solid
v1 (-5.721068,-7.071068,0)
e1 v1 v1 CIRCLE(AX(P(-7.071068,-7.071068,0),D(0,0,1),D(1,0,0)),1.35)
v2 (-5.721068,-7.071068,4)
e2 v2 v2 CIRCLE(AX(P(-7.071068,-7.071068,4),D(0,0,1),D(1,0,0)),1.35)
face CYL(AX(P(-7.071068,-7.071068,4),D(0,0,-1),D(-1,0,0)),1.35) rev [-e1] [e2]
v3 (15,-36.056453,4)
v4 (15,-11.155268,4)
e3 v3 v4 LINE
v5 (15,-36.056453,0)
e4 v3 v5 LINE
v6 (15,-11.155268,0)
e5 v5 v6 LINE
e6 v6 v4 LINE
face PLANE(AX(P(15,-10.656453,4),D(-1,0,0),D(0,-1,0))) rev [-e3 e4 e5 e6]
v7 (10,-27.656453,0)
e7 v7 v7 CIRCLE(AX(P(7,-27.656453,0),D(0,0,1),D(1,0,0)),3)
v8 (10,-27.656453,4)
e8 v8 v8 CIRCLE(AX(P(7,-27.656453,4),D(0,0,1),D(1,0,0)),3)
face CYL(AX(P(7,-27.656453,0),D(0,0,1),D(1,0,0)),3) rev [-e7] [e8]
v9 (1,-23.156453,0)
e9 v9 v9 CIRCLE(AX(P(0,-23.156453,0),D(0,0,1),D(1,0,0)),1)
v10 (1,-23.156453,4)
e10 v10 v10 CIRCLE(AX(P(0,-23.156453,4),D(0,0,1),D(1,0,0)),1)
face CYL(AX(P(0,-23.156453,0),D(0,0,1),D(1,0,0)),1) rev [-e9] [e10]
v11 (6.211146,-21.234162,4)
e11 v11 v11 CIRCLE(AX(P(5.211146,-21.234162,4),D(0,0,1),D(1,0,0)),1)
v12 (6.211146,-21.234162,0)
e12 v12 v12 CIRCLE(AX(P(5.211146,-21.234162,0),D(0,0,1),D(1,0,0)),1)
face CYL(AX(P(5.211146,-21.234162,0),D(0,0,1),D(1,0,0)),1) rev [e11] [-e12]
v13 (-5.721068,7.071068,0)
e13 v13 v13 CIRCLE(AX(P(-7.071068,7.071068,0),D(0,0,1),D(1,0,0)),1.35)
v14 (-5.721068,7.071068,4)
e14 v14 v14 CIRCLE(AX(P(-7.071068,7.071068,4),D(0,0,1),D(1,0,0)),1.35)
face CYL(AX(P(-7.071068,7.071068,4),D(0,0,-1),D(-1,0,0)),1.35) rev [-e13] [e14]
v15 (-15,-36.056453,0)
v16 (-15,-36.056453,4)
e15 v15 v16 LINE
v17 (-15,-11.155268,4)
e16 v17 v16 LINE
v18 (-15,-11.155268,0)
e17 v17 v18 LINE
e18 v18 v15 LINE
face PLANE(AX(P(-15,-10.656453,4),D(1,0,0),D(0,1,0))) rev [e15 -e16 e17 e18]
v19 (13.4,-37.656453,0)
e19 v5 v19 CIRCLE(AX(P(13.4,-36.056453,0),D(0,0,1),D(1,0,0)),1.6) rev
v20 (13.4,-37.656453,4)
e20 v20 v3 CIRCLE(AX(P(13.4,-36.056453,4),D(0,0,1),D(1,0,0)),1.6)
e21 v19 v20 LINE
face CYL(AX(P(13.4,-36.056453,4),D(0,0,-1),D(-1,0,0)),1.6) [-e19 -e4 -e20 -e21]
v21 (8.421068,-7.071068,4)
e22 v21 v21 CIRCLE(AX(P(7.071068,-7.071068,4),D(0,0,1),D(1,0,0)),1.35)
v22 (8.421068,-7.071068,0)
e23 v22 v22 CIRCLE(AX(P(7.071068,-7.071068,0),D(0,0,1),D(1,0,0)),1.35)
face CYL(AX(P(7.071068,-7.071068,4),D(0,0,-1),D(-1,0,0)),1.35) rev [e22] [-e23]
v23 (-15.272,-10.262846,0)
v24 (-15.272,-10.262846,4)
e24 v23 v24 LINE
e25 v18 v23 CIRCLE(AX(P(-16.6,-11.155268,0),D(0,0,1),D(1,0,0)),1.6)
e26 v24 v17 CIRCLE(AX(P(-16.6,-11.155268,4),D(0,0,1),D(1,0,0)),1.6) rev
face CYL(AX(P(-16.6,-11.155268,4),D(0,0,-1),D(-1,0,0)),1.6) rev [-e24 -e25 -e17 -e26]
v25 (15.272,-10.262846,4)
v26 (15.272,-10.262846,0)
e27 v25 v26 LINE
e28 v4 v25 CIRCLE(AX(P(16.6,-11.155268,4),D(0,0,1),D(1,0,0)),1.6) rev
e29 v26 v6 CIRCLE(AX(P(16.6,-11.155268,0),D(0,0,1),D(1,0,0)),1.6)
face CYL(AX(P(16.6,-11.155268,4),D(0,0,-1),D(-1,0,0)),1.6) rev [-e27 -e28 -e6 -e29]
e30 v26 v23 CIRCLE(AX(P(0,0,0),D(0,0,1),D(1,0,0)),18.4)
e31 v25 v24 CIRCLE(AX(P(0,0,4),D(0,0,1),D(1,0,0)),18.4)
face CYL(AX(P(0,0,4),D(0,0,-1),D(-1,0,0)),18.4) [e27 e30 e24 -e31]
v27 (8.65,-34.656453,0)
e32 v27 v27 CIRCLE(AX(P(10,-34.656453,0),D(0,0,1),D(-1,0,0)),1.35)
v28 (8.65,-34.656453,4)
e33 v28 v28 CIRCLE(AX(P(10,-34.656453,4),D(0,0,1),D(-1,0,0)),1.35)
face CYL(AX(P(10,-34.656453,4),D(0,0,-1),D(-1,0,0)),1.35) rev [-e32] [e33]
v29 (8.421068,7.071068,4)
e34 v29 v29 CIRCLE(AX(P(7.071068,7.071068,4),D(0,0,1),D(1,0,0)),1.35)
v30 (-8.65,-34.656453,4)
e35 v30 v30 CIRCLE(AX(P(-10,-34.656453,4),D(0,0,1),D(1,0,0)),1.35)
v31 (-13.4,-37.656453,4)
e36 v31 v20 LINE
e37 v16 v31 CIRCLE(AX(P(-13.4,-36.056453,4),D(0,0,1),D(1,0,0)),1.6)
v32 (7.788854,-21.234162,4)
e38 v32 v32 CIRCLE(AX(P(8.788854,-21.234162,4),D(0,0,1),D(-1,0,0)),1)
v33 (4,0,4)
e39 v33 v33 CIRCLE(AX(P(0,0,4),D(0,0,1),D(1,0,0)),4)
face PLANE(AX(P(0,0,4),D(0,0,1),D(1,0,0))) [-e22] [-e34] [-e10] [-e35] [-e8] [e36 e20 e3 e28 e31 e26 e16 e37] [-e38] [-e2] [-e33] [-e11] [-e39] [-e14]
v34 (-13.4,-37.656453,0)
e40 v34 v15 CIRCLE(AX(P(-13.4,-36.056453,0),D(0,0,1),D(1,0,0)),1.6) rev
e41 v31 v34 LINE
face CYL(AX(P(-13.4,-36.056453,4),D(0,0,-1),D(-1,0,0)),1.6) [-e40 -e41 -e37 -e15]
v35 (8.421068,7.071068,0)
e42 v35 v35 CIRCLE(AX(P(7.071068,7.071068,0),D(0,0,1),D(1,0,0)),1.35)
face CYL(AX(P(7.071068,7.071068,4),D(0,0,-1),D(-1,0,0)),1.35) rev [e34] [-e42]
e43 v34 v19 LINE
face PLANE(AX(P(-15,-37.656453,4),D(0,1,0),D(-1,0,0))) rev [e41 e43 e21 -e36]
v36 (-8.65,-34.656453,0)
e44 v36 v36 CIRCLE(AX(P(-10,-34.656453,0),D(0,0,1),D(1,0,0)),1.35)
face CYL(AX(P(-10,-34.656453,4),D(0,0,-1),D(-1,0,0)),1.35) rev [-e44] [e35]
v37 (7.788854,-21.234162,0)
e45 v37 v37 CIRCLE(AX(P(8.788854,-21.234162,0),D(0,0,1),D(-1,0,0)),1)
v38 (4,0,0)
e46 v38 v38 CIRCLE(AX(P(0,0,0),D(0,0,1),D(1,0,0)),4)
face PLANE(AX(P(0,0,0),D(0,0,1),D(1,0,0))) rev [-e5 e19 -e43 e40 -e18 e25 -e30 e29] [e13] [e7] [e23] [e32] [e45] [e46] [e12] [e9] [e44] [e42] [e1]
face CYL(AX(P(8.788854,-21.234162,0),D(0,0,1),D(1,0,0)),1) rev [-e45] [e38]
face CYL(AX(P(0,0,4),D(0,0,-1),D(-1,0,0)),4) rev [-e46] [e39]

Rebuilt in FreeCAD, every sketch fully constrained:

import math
import FreeCAD as App
import Part
import Sketcher


def edges_at(feature, points):
    """Names of the edges that pass closest to the given points."""
    edges = feature.Shape.Edges
    near = lambda p: min(range(len(edges)), key=lambda i: edges[i].distToShape(Part.Vertex(*p))[0])
    return sorted({f"Edge{near(p) + 1}" for p in points})

doc = App.newDocument("Part")
body = doc.addObject("PartDesign::Body", "Body")

# Sketch on XY plane
sketch1 = body.newObject("Sketcher::SketchObject", "Sketch")
sketch1.AttachmentSupport = (doc.getObject("XY_Plane"), [""])
sketch1.MapMode = "FlatFace"
sketch1.addGeometry([
    Part.LineSegment(App.Vector(-15, -10.7, 0), App.Vector(-15, -37.7, 0)),  # 0
    Part.LineSegment(App.Vector(-15, -37.7, 0), App.Vector(15, -37.7, 0)),  # 1
    Part.LineSegment(App.Vector(15, -37.7, 0), App.Vector(15, -10.7, 0)),  # 2
    Part.ArcOfCircle(Part.Circle(App.Vector(0, 0, 0), App.Vector(0, 0, 1), 18.4), math.radians(-35), math.radians(215)),  # 3
    Part.Circle(App.Vector(-10, -34.7, 0), App.Vector(0, 0, 1), 1.4),  # 4
    Part.Circle(App.Vector(10, -34.7, 0), App.Vector(0, 0, 1), 1.4),  # 5
    Part.Circle(App.Vector(-7.1, -7.1, 0), App.Vector(0, 0, 1), 1.4),  # 6
    Part.Circle(App.Vector(-7.1, 7.1, 0), App.Vector(0, 0, 1), 1.4),  # 7
    Part.Circle(App.Vector(7.1, -7.1, 0), App.Vector(0, 0, 1), 1.4),  # 8
    Part.Circle(App.Vector(0, 0, 0), App.Vector(0, 0, 1), 4),  # 9
    Part.Circle(App.Vector(7.1, 7.1, 0), App.Vector(0, 0, 1), 1.4),  # 10
], False)
sketch1.addConstraint([
    Sketcher.Constraint("Coincident", 0, 2, 1, 1),
    Sketcher.Constraint("Coincident", 1, 2, 2, 1),
    Sketcher.Constraint("Coincident", 2, 2, 3, 1),
    Sketcher.Constraint("Coincident", 3, 2, 0, 1),
    Sketcher.Constraint("Vertical", 0),
    Sketcher.Constraint("Horizontal", 1),
    Sketcher.Constraint("Vertical", 2),
    Sketcher.Constraint("Coincident", 3, 3, -1, 1),
    Sketcher.Constraint("Coincident", 9, 3, -1, 1),
    Sketcher.Constraint("Equal", 4, 5),
    Sketcher.Constraint("Equal", 5, 6),
    Sketcher.Constraint("Equal", 6, 7),
    Sketcher.Constraint("Equal", 7, 8),
    Sketcher.Constraint("Equal", 8, 10),
    Sketcher.Constraint("Symmetric", 7, 3, 8, 3, -1, 1),
    Sketcher.Constraint("Symmetric", 6, 3, 10, 3, -1, 1),
    Sketcher.Constraint("Symmetric", 4, 3, 5, 3, -2),
    Sketcher.Constraint("Symmetric", 6, 3, 8, 3, -2),
    Sketcher.Constraint("Horizontal", 2, 2, 3, 2),
    Sketcher.Constraint("Diameter", 9, 8.0),
    Sketcher.Constraint("Diameter", 4, 2.7),
    Sketcher.Constraint("Radius", 3, 18.4),
    Sketcher.Constraint("DistanceX", 1, 1, 1, 2, 30.0),
    Sketcher.Constraint("DistanceY", 0, 2, 0, 1, 27.0),
    Sketcher.Constraint("DistanceX", 4, 3, -1, 1, 10.0),
    Sketcher.Constraint("DistanceY", 0, 2, 4, 3, 3.0),
    Sketcher.Constraint("DistanceY", 4, 3, 7, 3, 41.727521),
    Sketcher.Constraint("DistanceX", 6, 3, -1, 1, 7.071068),
])
pad1 = body.newObject("PartDesign::Pad", "Pad")
pad1.Profile = sketch1
pad1.Length = 4

# Sketch on XY plane
sketch2 = body.newObject("Sketcher::SketchObject", "Sketch001")
sketch2.AttachmentSupport = (doc.getObject("XY_Plane"), [""])
sketch2.MapMode = "FlatFace"
sketch2.AttachmentOffset = App.Placement(App.Vector(0, 0, 4), App.Rotation())
sketch2.addGeometry([
    Part.Circle(App.Vector(7, -27.7, 0), App.Vector(0, 0, 1), 3),
    Part.Circle(App.Vector(5.2, -21.2, 0), App.Vector(0, 0, 1), 1),
    Part.Circle(App.Vector(8.8, -21.2, 0), App.Vector(0, 0, 1), 1),
], False)
sketch2.addConstraint([
    Sketcher.Constraint("Equal", 1, 2),
    Sketcher.Constraint("Horizontal", 1, 3, 2, 3),
    Sketcher.Constraint("Diameter", 0, 6.0),
    Sketcher.Constraint("Diameter", 1, 2.0),
    Sketcher.Constraint("DistanceX", -1, 1, 0, 3, 7.0),
    Sketcher.Constraint("DistanceY", 0, 3, 1, 3, 6.422291),
    Sketcher.Constraint("DistanceX", 1, 3, 2, 3, 3.577709),
    Sketcher.Constraint("DistanceY", 0, 3, -1, 1, 27.656453),
    Sketcher.Constraint("DistanceX", -1, 1, 1, 3, 5.211146),
])
pocket1 = body.newObject("PartDesign::Pocket", "Pocket")
pocket1.Profile = sketch2
pocket1.Length = 4
doc.recompute()

fillet = body.newObject("PartDesign::Fillet", "Fillet")
fillet.Base = (pocket1, edges_at(pocket1, [
    (15, -10.656, 2),
    (15, -37.656, 2),
    (-15, -37.656, 2),
    (-15, -10.656, 2),
]))
fillet.Radius = 1.6

# Sketch on XY plane
sketch3 = body.newObject("Sketcher::SketchObject", "Sketch002")
sketch3.AttachmentSupport = (doc.getObject("XY_Plane"), [""])
sketch3.MapMode = "FlatFace"
sketch3.AttachmentOffset = App.Placement(App.Vector(0, 0, 4), App.Rotation())
sketch3.addGeometry(Part.Circle(App.Vector(0, -23.2, 0), App.Vector(0, 0, 1), 1), False)
sketch3.addConstraint([
    Sketcher.Constraint("PointOnObject", 0, 3, -2),
    Sketcher.Constraint("Diameter", 0, 2.0),
    Sketcher.Constraint("DistanceY", 0, 3, -1, 1, 23.156453),
])
pocket2 = body.newObject("PartDesign::Pocket", "Pocket001")
pocket2.Profile = sketch3
pocket2.Length = 4

doc.recompute()
